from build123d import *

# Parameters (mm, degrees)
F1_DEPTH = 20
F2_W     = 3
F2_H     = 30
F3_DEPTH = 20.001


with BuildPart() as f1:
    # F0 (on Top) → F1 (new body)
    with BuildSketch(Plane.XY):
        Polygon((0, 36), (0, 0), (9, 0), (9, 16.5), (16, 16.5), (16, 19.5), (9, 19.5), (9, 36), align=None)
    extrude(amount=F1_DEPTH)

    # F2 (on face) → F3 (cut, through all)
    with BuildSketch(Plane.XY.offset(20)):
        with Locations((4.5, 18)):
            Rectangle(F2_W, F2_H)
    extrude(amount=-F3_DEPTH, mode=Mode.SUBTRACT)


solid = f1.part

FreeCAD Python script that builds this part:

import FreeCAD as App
import Part
import Sketcher
Q = App.Units.Quantity

doc = App.newDocument("Part")
body = doc.addObject("PartDesign::Body", "Body")

sketch1 = body.newObject("Sketcher::SketchObject", "Sketch")
sketch1.AttachmentSupport = (doc.getObject("XY_Plane"), [""])
sketch1.MapMode = "FlatFace"
sketch1.addGeometry(Part.LineSegment(App.Vector(0, 36, 0), App.Vector(0, 0, 0)), False)
sketch1.addGeometry(Part.LineSegment(App.Vector(0, 0, 0), App.Vector(9, 0, 0)), False)
sketch1.addGeometry(Part.LineSegment(App.Vector(9, 0, 0), App.Vector(9, 16.5, 0)), False)
sketch1.addGeometry(Part.LineSegment(App.Vector(9, 16.5, 0), App.Vector(16, 16.5, 0)), False)
sketch1.addGeometry(Part.LineSegment(App.Vector(16, 16.5, 0), App.Vector(16, 19.5, 0)), False)
sketch1.addGeometry(Part.LineSegment(App.Vector(16, 19.5, 0), App.Vector(9, 19.5, 0)), False)
sketch1.addGeometry(Part.LineSegment(App.Vector(9, 19.5, 0), App.Vector(9, 36, 0)), False)
sketch1.addGeometry(Part.LineSegment(App.Vector(9, 36, 0), App.Vector(0, 36, 0)), False)
sketch1.addConstraint(Sketcher.Constraint("Coincident", 0, 2, 1, 1))
sketch1.addConstraint(Sketcher.Constraint("Coincident", 1, 2, 2, 1))
sketch1.addConstraint(Sketcher.Constraint("Coincident", 2, 2, 3, 1))
sketch1.addConstraint(Sketcher.Constraint("Coincident", 3, 2, 4, 1))
sketch1.addConstraint(Sketcher.Constraint("Coincident", 4, 2, 5, 1))
sketch1.addConstraint(Sketcher.Constraint("Coincident", 5, 2, 6, 1))
sketch1.addConstraint(Sketcher.Constraint("Coincident", 6, 2, 7, 1))
sketch1.addConstraint(Sketcher.Constraint("Coincident", 7, 2, 0, 1))
sketch1.addConstraint(Sketcher.Constraint("Vertical", 0))
sketch1.addConstraint(Sketcher.Constraint("Horizontal", 1))
sketch1.addConstraint(Sketcher.Constraint("Vertical", 2))
sketch1.addConstraint(Sketcher.Constraint("Horizontal", 3))
sketch1.addConstraint(Sketcher.Constraint("Vertical", 4))
sketch1.addConstraint(Sketcher.Constraint("Horizontal", 5))
sketch1.addConstraint(Sketcher.Constraint("Vertical", 6))
sketch1.addConstraint(Sketcher.Constraint("Horizontal", 7))
sketch1.addConstraint(Sketcher.Constraint("Coincident", 0, 2, -1, 1))
sketch1.addConstraint(Sketcher.Constraint("Vertical", 2, 2, 5, 2))
sketch1.addConstraint(Sketcher.Constraint("Equal", 2, 6))
sketch1.addConstraint(Sketcher.Constraint("DistanceX", 1, 1, 1, 2, Q("9 mm")))
sketch1.addConstraint(Sketcher.Constraint("DistanceX", 3, 1, 3, 2, Q("7 mm")))
sketch1.addConstraint(Sketcher.Constraint("DistanceY", 0, 2, 0, 1, Q("36 mm")))
sketch1.addConstraint(Sketcher.Constraint("DistanceY", 4, 1, 4, 2, Q("3 mm")))
pad1 = body.newObject("PartDesign::Pad", "Pad")
pad1.Profile = sketch1
pad1.Length = 20

sketch2 = body.newObject("Sketcher::SketchObject", "Sketch001")
sketch2.AttachmentSupport = (doc.getObject("XY_Plane"), [""])
sketch2.MapMode = "FlatFace"
sketch2.AttachmentOffset = App.Placement(App.Vector(0, 0, 20), App.Rotation())
sketch2.addGeometry(Part.LineSegment(App.Vector(3, 33, 0), App.Vector(3, 3, 0)), False)
sketch2.addGeometry(Part.LineSegment(App.Vector(3, 3, 0), App.Vector(6, 3, 0)), False)
sketch2.addGeometry(Part.LineSegment(App.Vector(6, 3, 0), App.Vector(6, 33, 0)), False)
sketch2.addGeometry(Part.LineSegment(App.Vector(6, 33, 0), App.Vector(3, 33, 0)), False)
sketch2.addConstraint(Sketcher.Constraint("Coincident", 0, 2, 1, 1))
sketch2.addConstraint(Sketcher.Constraint("Coincident", 1, 2, 2, 1))
sketch2.addConstraint(Sketcher.Constraint("Coincident", 2, 2, 3, 1))
sketch2.addConstraint(Sketcher.Constraint("Coincident", 3, 2, 0, 1))
sketch2.addConstraint(Sketcher.Constraint("Vertical", 0))
sketch2.addConstraint(Sketcher.Constraint("Horizontal", 1))
sketch2.addConstraint(Sketcher.Constraint("Vertical", 2))
sketch2.addConstraint(Sketcher.Constraint("Horizontal", 3))
sketch2.addConstraint(Sketcher.Constraint("DistanceX", 1, 1, 1, 2, Q("3 mm")))
sketch2.addConstraint(Sketcher.Constraint("DistanceY", 0, 2, 0, 1, Q("30 mm")))
sketch2.addConstraint(Sketcher.Constraint("DistanceX", -1, 1, 0, 2, Q("3 mm")))
sketch2.addConstraint(Sketcher.Constraint("DistanceY", -1, 1, 0, 2, Q("3 mm")))
pocket1 = body.newObject("PartDesign::Pocket", "Pocket")
pocket1.Profile = sketch2
pocket1.Type = "ThroughAll"

doc.recompute()
